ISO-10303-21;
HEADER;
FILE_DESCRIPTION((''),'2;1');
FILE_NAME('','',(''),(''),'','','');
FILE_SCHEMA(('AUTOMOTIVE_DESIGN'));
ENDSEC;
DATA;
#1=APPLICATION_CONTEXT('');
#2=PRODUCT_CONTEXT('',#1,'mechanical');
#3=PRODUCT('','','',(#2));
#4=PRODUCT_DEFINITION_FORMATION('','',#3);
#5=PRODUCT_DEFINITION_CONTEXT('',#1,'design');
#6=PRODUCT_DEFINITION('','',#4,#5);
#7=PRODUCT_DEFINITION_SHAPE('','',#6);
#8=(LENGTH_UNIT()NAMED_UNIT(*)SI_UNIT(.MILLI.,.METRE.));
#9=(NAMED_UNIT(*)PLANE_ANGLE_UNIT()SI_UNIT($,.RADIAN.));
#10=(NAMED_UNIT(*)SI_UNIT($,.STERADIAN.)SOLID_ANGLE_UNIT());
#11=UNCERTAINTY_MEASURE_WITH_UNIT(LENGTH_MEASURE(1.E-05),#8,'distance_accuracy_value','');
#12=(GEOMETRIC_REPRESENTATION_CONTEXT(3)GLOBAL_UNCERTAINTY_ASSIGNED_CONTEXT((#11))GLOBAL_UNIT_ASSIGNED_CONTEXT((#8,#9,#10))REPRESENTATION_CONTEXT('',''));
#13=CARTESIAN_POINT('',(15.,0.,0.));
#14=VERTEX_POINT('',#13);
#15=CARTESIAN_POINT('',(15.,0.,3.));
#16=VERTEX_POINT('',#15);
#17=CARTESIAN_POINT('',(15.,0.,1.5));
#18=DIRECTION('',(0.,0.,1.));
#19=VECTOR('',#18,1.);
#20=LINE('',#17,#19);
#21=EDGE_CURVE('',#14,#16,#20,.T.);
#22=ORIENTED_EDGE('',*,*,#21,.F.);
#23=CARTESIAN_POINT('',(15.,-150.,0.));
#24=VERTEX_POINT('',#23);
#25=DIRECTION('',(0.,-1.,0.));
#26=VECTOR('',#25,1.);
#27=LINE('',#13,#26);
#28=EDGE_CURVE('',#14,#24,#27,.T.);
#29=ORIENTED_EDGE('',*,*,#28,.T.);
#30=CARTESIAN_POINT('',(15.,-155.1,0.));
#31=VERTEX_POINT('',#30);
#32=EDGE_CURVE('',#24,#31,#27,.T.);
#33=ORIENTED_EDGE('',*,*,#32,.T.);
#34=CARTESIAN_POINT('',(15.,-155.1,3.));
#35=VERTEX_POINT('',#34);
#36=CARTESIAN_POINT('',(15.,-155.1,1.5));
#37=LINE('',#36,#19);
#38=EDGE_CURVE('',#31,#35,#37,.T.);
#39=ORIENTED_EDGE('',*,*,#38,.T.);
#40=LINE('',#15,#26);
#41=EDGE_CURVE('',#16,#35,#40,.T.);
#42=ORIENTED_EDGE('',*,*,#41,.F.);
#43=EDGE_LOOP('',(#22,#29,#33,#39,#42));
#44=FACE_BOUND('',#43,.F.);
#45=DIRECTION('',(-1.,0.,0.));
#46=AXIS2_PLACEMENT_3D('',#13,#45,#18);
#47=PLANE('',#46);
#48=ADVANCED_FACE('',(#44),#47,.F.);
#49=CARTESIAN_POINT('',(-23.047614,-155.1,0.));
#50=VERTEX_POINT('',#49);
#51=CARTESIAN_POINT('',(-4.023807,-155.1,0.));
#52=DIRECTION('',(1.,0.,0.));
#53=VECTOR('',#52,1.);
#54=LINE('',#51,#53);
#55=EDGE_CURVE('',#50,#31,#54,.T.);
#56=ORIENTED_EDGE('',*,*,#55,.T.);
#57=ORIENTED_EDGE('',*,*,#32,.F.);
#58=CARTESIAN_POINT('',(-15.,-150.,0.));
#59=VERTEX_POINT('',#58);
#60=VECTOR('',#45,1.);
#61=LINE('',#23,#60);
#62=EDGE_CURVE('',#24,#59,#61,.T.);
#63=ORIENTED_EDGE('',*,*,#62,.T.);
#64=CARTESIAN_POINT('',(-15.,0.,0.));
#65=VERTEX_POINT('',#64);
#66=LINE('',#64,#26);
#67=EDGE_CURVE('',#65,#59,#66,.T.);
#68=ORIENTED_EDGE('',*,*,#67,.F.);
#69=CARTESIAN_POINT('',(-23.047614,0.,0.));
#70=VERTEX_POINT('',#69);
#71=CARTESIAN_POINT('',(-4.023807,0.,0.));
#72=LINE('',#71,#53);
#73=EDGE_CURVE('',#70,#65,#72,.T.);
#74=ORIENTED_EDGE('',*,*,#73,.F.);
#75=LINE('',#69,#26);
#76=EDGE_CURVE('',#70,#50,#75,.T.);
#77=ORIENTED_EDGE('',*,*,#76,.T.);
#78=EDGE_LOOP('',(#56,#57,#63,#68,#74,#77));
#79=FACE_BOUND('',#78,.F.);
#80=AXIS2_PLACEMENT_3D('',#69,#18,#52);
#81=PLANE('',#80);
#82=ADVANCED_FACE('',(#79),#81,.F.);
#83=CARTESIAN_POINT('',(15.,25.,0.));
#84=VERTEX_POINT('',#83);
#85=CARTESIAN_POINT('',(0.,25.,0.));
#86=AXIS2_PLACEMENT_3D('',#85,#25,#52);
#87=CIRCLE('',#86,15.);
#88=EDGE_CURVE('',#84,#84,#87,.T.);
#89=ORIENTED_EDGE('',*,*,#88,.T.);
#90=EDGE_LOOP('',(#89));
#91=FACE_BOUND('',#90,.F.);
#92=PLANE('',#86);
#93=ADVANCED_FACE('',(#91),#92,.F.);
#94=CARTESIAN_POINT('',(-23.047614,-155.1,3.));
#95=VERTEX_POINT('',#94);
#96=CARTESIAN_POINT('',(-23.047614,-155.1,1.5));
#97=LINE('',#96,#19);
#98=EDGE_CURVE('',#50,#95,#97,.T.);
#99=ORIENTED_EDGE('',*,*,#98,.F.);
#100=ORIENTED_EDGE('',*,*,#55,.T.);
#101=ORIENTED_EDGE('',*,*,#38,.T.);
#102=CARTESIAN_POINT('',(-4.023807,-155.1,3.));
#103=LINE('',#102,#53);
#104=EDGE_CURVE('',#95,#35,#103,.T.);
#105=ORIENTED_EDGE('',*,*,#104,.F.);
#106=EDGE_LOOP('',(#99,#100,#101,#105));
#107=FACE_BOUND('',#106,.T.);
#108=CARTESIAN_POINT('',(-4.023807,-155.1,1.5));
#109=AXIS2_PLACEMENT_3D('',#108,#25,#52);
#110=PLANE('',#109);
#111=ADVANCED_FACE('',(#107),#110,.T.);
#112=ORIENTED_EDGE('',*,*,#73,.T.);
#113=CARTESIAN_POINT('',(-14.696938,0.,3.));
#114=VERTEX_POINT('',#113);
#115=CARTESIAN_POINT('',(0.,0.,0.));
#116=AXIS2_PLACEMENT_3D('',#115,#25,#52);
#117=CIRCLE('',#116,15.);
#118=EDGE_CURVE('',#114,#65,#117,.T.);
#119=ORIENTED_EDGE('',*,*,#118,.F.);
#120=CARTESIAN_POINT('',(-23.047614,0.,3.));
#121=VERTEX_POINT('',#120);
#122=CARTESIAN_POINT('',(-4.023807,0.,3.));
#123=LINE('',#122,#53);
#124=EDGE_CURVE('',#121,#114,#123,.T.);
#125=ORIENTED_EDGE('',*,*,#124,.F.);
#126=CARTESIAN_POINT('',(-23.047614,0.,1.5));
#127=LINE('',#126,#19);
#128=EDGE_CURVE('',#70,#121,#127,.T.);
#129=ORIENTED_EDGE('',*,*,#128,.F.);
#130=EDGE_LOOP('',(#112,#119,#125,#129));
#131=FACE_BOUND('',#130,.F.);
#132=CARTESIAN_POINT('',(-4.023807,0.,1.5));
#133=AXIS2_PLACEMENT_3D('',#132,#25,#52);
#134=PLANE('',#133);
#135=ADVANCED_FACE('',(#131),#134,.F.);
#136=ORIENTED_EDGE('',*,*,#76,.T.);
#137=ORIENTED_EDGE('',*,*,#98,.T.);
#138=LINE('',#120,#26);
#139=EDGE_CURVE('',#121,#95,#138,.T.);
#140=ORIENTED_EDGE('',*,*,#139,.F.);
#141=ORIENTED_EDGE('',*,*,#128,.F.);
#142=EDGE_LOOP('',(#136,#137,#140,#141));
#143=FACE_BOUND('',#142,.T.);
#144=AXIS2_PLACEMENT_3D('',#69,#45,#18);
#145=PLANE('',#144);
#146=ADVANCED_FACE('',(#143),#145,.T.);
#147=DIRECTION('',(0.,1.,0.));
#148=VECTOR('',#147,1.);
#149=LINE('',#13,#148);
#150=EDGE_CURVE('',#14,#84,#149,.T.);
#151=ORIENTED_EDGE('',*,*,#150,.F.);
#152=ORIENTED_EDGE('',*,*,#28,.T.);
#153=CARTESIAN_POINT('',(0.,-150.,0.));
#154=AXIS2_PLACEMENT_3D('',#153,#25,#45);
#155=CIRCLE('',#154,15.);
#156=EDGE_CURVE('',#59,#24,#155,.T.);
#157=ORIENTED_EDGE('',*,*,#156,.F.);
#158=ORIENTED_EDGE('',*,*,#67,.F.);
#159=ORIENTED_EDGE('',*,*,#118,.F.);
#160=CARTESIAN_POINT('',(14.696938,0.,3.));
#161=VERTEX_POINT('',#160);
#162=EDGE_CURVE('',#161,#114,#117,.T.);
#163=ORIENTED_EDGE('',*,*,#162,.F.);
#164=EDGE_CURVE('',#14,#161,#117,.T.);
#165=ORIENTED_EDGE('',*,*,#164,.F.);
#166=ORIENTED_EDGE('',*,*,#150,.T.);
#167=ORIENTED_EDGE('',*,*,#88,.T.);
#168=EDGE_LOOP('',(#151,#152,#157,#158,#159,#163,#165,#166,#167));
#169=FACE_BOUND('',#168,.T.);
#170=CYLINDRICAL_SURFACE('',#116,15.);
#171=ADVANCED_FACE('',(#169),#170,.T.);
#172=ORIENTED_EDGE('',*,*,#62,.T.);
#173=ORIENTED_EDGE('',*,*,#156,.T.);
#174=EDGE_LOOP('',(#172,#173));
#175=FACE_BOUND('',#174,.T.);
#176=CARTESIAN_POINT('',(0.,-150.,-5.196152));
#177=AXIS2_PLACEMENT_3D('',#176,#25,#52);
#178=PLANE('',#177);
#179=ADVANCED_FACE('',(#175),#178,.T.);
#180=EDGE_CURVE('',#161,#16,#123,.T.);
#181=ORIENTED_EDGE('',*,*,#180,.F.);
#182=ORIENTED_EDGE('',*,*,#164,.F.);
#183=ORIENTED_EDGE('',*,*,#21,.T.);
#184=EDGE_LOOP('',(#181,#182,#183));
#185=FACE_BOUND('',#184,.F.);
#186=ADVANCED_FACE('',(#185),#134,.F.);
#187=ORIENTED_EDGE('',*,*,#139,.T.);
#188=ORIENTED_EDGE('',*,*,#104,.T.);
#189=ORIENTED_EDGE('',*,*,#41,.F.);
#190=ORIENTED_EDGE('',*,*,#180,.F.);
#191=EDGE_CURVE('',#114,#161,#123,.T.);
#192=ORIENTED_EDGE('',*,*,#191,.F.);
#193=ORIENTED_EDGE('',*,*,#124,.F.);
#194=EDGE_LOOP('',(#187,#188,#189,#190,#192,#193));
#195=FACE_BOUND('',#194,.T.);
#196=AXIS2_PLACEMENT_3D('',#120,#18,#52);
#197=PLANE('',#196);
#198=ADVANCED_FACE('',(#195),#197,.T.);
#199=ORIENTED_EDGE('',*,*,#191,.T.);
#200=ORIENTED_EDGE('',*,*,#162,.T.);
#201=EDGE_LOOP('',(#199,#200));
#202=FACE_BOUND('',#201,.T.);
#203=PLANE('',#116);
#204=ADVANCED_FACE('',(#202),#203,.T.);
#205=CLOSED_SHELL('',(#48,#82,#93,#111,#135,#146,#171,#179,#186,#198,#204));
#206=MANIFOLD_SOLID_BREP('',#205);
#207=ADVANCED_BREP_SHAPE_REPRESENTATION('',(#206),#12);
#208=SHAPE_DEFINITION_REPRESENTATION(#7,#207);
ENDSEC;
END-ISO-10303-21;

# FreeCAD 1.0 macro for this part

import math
import FreeCAD as App
import Part
import Sketcher


def add_polygon(sketch, points):
    """Adds a closed chain of lines whose ends are joined by coincident constraints."""
    first, n = sketch.GeometryCount, len(points)
    for a, b in zip(points, points[1:] + points[:1]):
        sketch.addGeometry(Part.LineSegment(App.Vector(*a, 0), App.Vector(*b, 0)), False)
    for i in range(n):
        sketch.addConstraint(Sketcher.Constraint("Coincident", first + i, 2, first + (i + 1) % n, 1))

doc = App.newDocument("Part")
body = doc.addObject("PartDesign::Body", "Body")

sketch1 = body.newObject("Sketcher::SketchObject", "Sketch")
sketch1.AttachmentSupport = (doc.getObject("XZ_Plane"), [""])
sketch1.MapMode = "FlatFace"
sketch1.addGeometry([
    Part.LineSegment(App.Vector(15, 0, 0), App.Vector(-15, 0, 0)),
    Part.ArcOfCircle(Part.Circle(App.Vector(0, 0, 0), App.Vector(0, 0, 1), 15), math.radians(180), math.radians(360)),
], False)
sketch1.addConstraint([
    Sketcher.Constraint("Coincident", 0, 1, 1, 2),
    Sketcher.Constraint("Coincident", 1, 1, 0, 2),
    Sketcher.Constraint("Horizontal", 0),
    Sketcher.Constraint("Coincident", 1, 3, -1, 1),
    Sketcher.Constraint("PointOnObject", 0, 1, -1),
    Sketcher.Constraint("Radius", 1, 15.0),
])
pad1 = body.newObject("PartDesign::Pad", "Pad")
pad1.Profile = sketch1
pad1.Length = 150

sketch2 = body.newObject("Sketcher::SketchObject", "Sketch001")
sketch2.AttachmentSupport = (doc.getObject("XZ_Plane"), [""])
sketch2.MapMode = "FlatFace"
sketch2.addGeometry(Part.Circle(App.Vector(0, 0, 0), App.Vector(0, 0, 1), 15), False)
sketch2.addConstraint([
    Sketcher.Constraint("Coincident", 0, 3, -1, 1),
    Sketcher.Constraint("Diameter", 0, 30.0),
])
pad2 = body.newObject("PartDesign::Pad", "Pad001")
pad2.Profile = sketch2
pad2.Length = 25
pad2.Reversed = True

sketch3 = body.newObject("Sketcher::SketchObject", "Sketch002")
sketch3.AttachmentSupport = (doc.getObject("XZ_Plane"), [""])
sketch3.MapMode = "FlatFace"
add_polygon(sketch3, [(-23, 3), (-23, 0), (15, 0), (15, 3)])
sketch3.addConstraint([
    Sketcher.Constraint("Vertical", 0),
    Sketcher.Constraint("Horizontal", 1),
    Sketcher.Constraint("Vertical", 2),
    Sketcher.Constraint("Horizontal", 3),
    Sketcher.Constraint("PointOnObject", 0, 2, -1),
    Sketcher.Constraint("DistanceY", 0, 2, 0, 1, 3.0),
    Sketcher.Constraint("DistanceX", -1, 1, 1, 2, 15.0),
    Sketcher.Constraint("DistanceX", 1, 1, 1, 2, 38.047614),
])
pad3 = body.newObject("PartDesign::Pad", "Pad002")
pad3.Profile = sketch3
pad3.Length = 155.1

doc.recompute()
